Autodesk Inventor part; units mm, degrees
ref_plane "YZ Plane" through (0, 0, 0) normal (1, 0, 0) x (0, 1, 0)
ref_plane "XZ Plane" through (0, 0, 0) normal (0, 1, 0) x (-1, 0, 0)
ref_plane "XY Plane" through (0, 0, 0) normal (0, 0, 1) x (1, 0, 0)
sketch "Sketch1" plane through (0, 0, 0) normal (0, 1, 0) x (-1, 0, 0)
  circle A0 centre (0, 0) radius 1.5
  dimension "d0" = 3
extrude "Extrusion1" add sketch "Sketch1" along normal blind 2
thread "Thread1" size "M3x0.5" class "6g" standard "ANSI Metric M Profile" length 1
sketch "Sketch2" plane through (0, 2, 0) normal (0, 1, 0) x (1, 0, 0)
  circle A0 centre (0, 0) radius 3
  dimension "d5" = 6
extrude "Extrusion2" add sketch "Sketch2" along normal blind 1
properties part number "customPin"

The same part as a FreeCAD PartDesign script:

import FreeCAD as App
import Part
import Sketcher

V = App.Vector
Q = App.Units.Quantity

doc = App.newDocument("Part")
body = doc.addObject("PartDesign::Body", "Body")

# Sketch on XZ plane
sketch1 = doc.addObject("Sketcher::SketchObject", "Sketch")
body.addObject(sketch1)
sketch1.AttachmentSupport = (doc.XZ_Plane, [""])
sketch1.MapMode = "FlatFace"
sketch1.addGeometry(Part.Circle(V(0, 0, 0), V(0, 0, 1), 1.5), False)
sketch1.addConstraint([
    Sketcher.Constraint("Coincident", 0, 3, -1, 1),
    Sketcher.Constraint("Diameter", 0, Q("3 mm")),
])
pad1 = doc.addObject("PartDesign::Pad", "Pad")
body.addObject(pad1)
pad1.Profile = sketch1
pad1.Length = 2
pad1.Reversed = True

# Sketch on XZ plane
sketch2 = doc.addObject("Sketcher::SketchObject", "Sketch001")
body.addObject(sketch2)
sketch2.AttachmentSupport = (doc.XZ_Plane, [""])
sketch2.MapMode = "FlatFace"
sketch2.AttachmentOffset = App.Placement(V(0, 0, -2), App.Rotation())
sketch2.addGeometry(Part.Circle(V(0, 0, 0), V(0, 0, 1), 3), False)
sketch2.addConstraint([
    Sketcher.Constraint("Coincident", 0, 3, -1, 1),
    Sketcher.Constraint("Diameter", 0, Q("6 mm")),
])
pad2 = doc.addObject("PartDesign::Pad", "Pad001")
body.addObject(pad2)
pad2.Profile = sketch2
pad2.Length = 1
pad2.Reversed = True

doc.recompute()
